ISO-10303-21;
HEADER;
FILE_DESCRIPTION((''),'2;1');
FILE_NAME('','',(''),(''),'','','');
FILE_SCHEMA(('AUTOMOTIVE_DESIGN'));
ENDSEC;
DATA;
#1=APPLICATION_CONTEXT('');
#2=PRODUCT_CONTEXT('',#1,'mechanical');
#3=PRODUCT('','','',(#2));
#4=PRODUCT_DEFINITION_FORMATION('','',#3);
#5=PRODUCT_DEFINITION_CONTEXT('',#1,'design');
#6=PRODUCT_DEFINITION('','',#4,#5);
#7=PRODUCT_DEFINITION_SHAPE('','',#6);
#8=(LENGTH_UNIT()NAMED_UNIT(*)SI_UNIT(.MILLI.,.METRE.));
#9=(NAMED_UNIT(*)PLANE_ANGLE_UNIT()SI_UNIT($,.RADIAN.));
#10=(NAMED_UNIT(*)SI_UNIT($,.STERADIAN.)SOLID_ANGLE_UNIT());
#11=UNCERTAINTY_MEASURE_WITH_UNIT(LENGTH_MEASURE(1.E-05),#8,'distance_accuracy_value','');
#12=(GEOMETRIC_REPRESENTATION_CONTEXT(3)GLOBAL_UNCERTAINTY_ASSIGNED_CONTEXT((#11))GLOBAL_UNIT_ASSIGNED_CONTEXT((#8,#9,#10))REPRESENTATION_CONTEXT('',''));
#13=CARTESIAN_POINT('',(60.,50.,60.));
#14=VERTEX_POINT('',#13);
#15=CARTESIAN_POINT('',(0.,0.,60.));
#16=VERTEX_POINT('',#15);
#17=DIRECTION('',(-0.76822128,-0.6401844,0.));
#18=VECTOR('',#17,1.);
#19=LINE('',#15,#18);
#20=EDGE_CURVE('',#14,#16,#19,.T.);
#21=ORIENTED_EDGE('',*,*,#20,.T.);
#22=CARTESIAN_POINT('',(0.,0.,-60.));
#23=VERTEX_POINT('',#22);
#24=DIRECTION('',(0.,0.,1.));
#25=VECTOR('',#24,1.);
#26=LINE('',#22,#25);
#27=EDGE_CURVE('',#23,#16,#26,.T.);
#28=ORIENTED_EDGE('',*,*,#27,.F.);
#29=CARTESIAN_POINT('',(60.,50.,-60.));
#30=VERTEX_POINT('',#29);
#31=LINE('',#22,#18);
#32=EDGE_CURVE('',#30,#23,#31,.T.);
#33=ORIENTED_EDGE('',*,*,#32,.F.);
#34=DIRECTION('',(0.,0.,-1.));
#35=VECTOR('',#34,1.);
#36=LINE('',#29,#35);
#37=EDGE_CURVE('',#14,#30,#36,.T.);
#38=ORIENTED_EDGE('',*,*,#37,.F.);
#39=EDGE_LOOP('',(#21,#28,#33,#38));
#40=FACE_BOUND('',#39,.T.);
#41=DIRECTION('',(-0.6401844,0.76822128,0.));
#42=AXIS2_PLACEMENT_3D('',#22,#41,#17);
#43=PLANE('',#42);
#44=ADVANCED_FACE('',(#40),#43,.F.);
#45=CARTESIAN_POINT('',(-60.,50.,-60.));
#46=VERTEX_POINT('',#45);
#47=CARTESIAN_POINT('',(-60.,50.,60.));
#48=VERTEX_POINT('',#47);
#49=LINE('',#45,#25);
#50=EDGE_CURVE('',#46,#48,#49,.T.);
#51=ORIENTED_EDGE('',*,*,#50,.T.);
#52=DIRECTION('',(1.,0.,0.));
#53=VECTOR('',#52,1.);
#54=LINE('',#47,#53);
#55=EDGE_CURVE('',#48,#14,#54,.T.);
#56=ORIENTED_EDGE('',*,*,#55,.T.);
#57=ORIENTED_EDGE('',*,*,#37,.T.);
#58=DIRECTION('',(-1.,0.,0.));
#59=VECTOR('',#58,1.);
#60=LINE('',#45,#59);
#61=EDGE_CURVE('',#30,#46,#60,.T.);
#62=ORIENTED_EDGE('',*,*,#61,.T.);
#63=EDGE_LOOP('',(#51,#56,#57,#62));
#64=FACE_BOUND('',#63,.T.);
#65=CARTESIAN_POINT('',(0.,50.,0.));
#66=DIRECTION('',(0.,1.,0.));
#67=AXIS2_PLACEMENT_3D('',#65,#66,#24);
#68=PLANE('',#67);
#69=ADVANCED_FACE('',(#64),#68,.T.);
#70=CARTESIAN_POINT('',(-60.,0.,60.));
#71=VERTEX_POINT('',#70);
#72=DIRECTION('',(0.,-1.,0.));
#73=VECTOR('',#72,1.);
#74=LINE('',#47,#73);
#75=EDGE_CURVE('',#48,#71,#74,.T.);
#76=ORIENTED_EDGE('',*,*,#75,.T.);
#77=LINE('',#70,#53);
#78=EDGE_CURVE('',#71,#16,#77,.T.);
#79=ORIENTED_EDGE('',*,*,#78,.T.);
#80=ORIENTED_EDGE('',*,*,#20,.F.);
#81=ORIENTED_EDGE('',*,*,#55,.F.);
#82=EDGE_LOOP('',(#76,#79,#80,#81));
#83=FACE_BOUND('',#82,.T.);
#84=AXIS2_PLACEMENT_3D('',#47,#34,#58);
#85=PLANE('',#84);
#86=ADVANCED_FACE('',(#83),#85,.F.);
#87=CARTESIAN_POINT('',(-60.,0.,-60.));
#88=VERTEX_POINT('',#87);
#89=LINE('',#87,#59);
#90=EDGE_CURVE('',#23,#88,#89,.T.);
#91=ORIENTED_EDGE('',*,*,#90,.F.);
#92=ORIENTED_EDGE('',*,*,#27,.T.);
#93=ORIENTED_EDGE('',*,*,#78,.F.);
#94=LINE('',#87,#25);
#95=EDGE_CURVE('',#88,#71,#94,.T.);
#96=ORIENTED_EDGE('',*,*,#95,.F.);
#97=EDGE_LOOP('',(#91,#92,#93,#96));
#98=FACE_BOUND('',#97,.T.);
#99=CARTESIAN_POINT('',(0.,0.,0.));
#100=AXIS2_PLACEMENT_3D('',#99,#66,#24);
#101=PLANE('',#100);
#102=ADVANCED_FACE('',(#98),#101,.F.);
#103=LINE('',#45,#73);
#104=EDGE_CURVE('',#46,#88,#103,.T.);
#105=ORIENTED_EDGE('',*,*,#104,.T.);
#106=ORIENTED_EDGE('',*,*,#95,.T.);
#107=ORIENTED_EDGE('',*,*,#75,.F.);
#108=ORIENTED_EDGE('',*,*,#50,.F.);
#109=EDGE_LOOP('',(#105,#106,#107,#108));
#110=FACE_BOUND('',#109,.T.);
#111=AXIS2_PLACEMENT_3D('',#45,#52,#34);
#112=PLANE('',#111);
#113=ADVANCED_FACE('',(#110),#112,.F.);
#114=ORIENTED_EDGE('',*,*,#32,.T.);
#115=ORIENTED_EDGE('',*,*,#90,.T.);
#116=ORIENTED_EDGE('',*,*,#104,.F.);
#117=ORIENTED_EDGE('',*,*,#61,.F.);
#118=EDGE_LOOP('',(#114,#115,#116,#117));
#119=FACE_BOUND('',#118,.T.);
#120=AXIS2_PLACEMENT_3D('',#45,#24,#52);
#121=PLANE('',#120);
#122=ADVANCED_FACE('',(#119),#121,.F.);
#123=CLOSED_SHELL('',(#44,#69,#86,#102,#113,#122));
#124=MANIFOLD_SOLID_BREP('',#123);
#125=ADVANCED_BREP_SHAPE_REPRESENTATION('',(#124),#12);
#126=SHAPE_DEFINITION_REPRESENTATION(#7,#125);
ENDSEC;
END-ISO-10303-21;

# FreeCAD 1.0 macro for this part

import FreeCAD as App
import Part
import Sketcher
from FreeCAD import Vector


def add_polygon(sketch, points):
    """Adds a closed chain of lines whose ends are joined by coincident constraints."""
    first, n = sketch.GeometryCount, len(points)
    for a, b in zip(points, points[1:] + points[:1]):
        sketch.addGeometry(Part.LineSegment(App.Vector(*a, 0), App.Vector(*b, 0)), False)
    for i in range(n):
        sketch.addConstraint(Sketcher.Constraint("Coincident", first + i, 2, first + (i + 1) % n, 1))

doc = App.newDocument("Part")
params = doc.addObject("Spreadsheet::Sheet", "Params")
for row, (alias, value) in enumerate([
    ("sketch1_width", "120 mm"),
    ("pad1_length", "50 mm"),
    ("sketch2_width", "60 mm"),
    ("sketch2_height", "50 mm"),
], start=1):
    params.set(f"A{row}", alias)
    params.set(f"B{row}", "=" + value)
    params.setAlias(f"B{row}", alias)

body = doc.addObject("PartDesign::Body", "Body")

sketch1 = body.newObject("Sketcher::SketchObject", "Sketch")
sketch1.AttachmentSupport = (doc.getObject("XZ_Plane"), [""])
sketch1.MapMode = "FlatFace"
add_polygon(sketch1, [(-60, -60), (-60, 60), (60, 60), (60, -60)])
sketch1.addConstraint([
    Sketcher.Constraint("Vertical", 0),
    Sketcher.Constraint("Horizontal", 1),
    Sketcher.Constraint("Vertical", 2),
    Sketcher.Constraint("Horizontal", 3),
    Sketcher.Constraint("Symmetric", 0, 2, 2, 2, -1, 1),
    Sketcher.Constraint("Equal", 3, 0),
    Sketcher.Constraint("DistanceX", 1, 1, 1, 2, 120.0),
])
sketch1.setExpression("Constraints[10]", "Params.sketch1_width")
pad1 = body.newObject("PartDesign::Pad", "Pad")
pad1.Profile = sketch1
pad1.setExpression("Length", "Params.pad1_length")
pad1.Reversed = True

sketch2 = body.newObject("Sketcher::SketchObject", "Sketch001")
sketch2.AttachmentSupport = (doc.getObject("XY_Plane"), [""])
sketch2.MapMode = "FlatFace"
sketch2.AttachmentOffset = App.Placement(Vector(0, 0, 60), App.Rotation())
add_polygon(sketch2, [(0, 0), (60, 0), (60, 50)])
sketch2.addConstraint([
    Sketcher.Constraint("Horizontal", 0),
    Sketcher.Constraint("Vertical", 1),
    Sketcher.Constraint("Coincident", 2, 2, -1, 1),
    Sketcher.Constraint("DistanceX", 0, 1, 0, 2, 60.0),
    Sketcher.Constraint("DistanceY", 1, 1, 1, 2, 50.0),
])
sketch2.setExpression("Constraints[6]", "Params.sketch2_width")
sketch2.setExpression("Constraints[7]", "Params.sketch2_height")
pocket1 = body.newObject("PartDesign::Pocket", "Pocket")
pocket1.Profile = sketch2
pocket1.Type = "ThroughAll"

doc.recompute()
